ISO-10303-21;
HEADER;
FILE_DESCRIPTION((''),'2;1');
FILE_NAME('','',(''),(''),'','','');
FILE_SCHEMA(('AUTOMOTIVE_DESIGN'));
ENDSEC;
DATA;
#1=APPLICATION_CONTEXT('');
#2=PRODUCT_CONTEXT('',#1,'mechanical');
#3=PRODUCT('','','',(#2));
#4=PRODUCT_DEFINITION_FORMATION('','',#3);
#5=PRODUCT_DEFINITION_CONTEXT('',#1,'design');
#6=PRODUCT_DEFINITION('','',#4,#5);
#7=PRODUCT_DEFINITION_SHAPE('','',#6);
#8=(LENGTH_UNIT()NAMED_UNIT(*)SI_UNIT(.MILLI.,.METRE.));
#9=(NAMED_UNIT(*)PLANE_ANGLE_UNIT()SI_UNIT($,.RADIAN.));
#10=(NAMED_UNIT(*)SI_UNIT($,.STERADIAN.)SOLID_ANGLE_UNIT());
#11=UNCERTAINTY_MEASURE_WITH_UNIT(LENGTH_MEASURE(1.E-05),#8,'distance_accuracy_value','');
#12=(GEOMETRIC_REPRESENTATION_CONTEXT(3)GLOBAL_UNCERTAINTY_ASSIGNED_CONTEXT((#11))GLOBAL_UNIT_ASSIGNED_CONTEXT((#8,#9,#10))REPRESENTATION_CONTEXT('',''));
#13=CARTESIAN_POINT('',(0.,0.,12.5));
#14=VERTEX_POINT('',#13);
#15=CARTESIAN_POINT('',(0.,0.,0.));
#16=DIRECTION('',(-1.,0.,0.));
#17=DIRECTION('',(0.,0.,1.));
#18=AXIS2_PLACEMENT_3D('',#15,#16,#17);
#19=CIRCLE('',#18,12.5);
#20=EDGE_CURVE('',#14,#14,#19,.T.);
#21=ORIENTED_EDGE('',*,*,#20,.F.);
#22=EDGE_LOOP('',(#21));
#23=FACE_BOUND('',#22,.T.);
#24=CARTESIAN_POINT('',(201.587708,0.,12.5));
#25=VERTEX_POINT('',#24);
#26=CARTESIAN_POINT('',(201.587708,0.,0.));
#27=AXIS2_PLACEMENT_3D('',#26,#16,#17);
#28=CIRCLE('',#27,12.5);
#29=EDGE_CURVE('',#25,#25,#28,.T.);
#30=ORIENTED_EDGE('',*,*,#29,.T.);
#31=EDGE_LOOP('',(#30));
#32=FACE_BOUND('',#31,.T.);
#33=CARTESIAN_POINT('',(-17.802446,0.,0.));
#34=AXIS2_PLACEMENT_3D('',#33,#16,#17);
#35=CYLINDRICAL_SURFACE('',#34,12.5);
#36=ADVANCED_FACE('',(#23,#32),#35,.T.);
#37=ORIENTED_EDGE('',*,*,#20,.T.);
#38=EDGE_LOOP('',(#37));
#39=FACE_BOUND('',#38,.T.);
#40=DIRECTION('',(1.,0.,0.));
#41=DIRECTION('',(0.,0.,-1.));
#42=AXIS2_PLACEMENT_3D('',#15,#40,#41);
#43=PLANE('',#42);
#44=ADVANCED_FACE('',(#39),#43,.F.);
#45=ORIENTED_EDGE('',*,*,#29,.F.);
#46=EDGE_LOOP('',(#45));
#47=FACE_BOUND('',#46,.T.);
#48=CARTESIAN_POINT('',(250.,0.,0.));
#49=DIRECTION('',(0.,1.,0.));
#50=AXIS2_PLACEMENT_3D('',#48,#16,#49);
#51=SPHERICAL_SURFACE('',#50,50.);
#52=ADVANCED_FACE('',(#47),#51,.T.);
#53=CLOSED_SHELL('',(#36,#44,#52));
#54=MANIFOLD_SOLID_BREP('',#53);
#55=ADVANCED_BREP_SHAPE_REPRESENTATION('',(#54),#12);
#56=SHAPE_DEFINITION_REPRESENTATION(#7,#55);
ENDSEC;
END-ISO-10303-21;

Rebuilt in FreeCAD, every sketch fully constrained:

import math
import FreeCAD as App
import Part
import Sketcher

doc = App.newDocument("Part")
params = doc.addObject("Spreadsheet::Sheet", "Params")
for row, (alias, value) in enumerate([
    ("sketch1_radius", "50 mm"),
    ("sketch1_width", "300 mm"),
    ("sketch1_height", "12.5 mm"),
    ("revolution_angle", "360 deg"),
], start=1):
    params.set(f"A{row}", alias)
    params.set(f"B{row}", "=" + value)
    params.setAlias(f"B{row}", alias)

body = doc.addObject("PartDesign::Body", "Body")

# Sketch on XY plane
sketch1 = body.newObject("Sketcher::SketchObject", "Sketch")
sketch1.AttachmentSupport = (doc.getObject("XY_Plane"), [""])
sketch1.MapMode = "FlatFace"
sketch1.addGeometry([
    Part.LineSegment(App.Vector(0, 0, 0), App.Vector(300, 0, 0)),
    Part.ArcOfCircle(Part.Circle(App.Vector(250, 0, 0), App.Vector(0, 0, 1), 50), math.radians(0), math.radians(166)),
    Part.LineSegment(App.Vector(202, 12, 0), App.Vector(0, 12, 0)),
    Part.LineSegment(App.Vector(0, 12, 0), App.Vector(0, 0, 0)),
], False)
sketch1.addConstraint([
    Sketcher.Constraint("Coincident", 0, 2, 1, 1),
    Sketcher.Constraint("Coincident", 1, 2, 2, 1),
    Sketcher.Constraint("Coincident", 2, 2, 3, 1),
    Sketcher.Constraint("Coincident", 3, 2, 0, 1),
    Sketcher.Constraint("Horizontal", 0),
    Sketcher.Constraint("Horizontal", 2),
    Sketcher.Constraint("Vertical", 3),
    Sketcher.Constraint("Coincident", 3, 2, -1, 1),
    Sketcher.Constraint("PointOnObject", 1, 3, -1),
    Sketcher.Constraint("Radius", 1, 50.0),
    Sketcher.Constraint("DistanceX", 0, 1, 0, 2, 300.0),
    Sketcher.Constraint("DistanceY", 3, 2, 3, 1, 12.5),
])
sketch1.setExpression("Constraints[9]", "Params.sketch1_radius")
sketch1.setExpression("Constraints[10]", "Params.sketch1_width")
sketch1.setExpression("Constraints[11]", "Params.sketch1_height")
revolution = body.newObject("PartDesign::Revolution", "Revolution")
revolution.Profile = sketch1
revolution.ReferenceAxis = (sketch1, ["H_Axis"])
revolution.setExpression("Angle", "Params.revolution_angle")

doc.recompute()
